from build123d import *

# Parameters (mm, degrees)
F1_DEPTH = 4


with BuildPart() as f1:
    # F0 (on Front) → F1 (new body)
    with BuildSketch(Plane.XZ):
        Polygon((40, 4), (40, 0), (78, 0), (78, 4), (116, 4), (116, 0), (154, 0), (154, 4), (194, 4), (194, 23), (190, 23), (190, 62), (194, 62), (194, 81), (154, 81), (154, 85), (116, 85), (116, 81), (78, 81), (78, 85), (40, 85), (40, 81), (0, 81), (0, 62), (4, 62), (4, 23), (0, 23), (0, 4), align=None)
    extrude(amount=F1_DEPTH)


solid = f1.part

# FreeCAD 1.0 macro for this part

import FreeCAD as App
import Part
import Sketcher
from FreeCAD import Vector


def add_polygon(sketch, points):
    """Adds a closed chain of lines whose ends are joined by coincident constraints."""
    first, n = sketch.GeometryCount, len(points)
    for a, b in zip(points, points[1:] + points[:1]):
        sketch.addGeometry(Part.LineSegment(App.Vector(*a, 0), App.Vector(*b, 0)), False)
    for i in range(n):
        sketch.addConstraint(Sketcher.Constraint("Coincident", first + i, 2, first + (i + 1) % n, 1))

doc = App.newDocument("Part")
body = doc.addObject("PartDesign::Body", "Body")

# Sketch on XZ plane
sketch1 = body.newObject("Sketcher::SketchObject", "Sketch")
sketch1.AttachmentSupport = (doc.getObject("XZ_Plane"), [""])
sketch1.MapMode = "FlatFace"
add_polygon(sketch1, [(40, 4), (40, 0), (78, 0), (78, 4), (116, 4), (116, 0), (154, 0), (154, 4), (194, 4), (194, 23), (190, 23), (190, 62), (194, 62), (194, 81), (154, 81), (154, 85), (116, 85), (116, 81), (78, 81), (78, 85), (40, 85), (40, 81), (0, 81), (0, 62), (4, 62), (4, 23), (0, 23), (0, 4)])  # lines 0-27
sketch1.addConstraint(Sketcher.Constraint("Vertical", 0))
sketch1.addConstraint(Sketcher.Constraint("Horizontal", 1))
sketch1.addConstraint(Sketcher.Constraint("Vertical", 2))
sketch1.addConstraint(Sketcher.Constraint("Horizontal", 3))
sketch1.addConstraint(Sketcher.Constraint("Vertical", 4))
sketch1.addConstraint(Sketcher.Constraint("Horizontal", 5))
sketch1.addConstraint(Sketcher.Constraint("Vertical", 6))
sketch1.addConstraint(Sketcher.Constraint("Horizontal", 7))
sketch1.addConstraint(Sketcher.Constraint("Vertical", 8))
sketch1.addConstraint(Sketcher.Constraint("Horizontal", 9))
sketch1.addConstraint(Sketcher.Constraint("Vertical", 10))
sketch1.addConstraint(Sketcher.Constraint("Horizontal", 11))
sketch1.addConstraint(Sketcher.Constraint("Vertical", 12))
sketch1.addConstraint(Sketcher.Constraint("Horizontal", 13))
sketch1.addConstraint(Sketcher.Constraint("Vertical", 14))
sketch1.addConstraint(Sketcher.Constraint("Horizontal", 15))
sketch1.addConstraint(Sketcher.Constraint("Vertical", 16))
sketch1.addConstraint(Sketcher.Constraint("Horizontal", 17))
sketch1.addConstraint(Sketcher.Constraint("Vertical", 18))
sketch1.addConstraint(Sketcher.Constraint("Horizontal", 19))
sketch1.addConstraint(Sketcher.Constraint("Vertical", 20))
sketch1.addConstraint(Sketcher.Constraint("Horizontal", 21))
sketch1.addConstraint(Sketcher.Constraint("Vertical", 22))
sketch1.addConstraint(Sketcher.Constraint("Horizontal", 23))
sketch1.addConstraint(Sketcher.Constraint("Vertical", 24))
sketch1.addConstraint(Sketcher.Constraint("Horizontal", 25))
sketch1.addConstraint(Sketcher.Constraint("Vertical", 26))
sketch1.addConstraint(Sketcher.Constraint("Horizontal", 27))
sketch1.addConstraint(Sketcher.Constraint("PointOnObject", 0, 2, -1))
sketch1.addConstraint(Sketcher.Constraint("PointOnObject", 4, 2, -1))
sketch1.addConstraint(Sketcher.Constraint("PointOnObject", 21, 2, -2))
sketch1.addConstraint(Sketcher.Constraint("PointOnObject", 25, 2, -2))
sketch1.addConstraint(Sketcher.Constraint("Horizontal", 3, 2, 6, 2))
sketch1.addConstraint(Sketcher.Constraint("Horizontal", 13, 2, 16, 2))
sketch1.addConstraint(Sketcher.Constraint("Horizontal", 15, 2, 18, 2))
sketch1.addConstraint(Sketcher.Constraint("Horizontal", 17, 2, 20, 2))
sketch1.addConstraint(Sketcher.Constraint("Horizontal", 11, 2, 22, 2))
sketch1.addConstraint(Sketcher.Constraint("Horizontal", 9, 2, 24, 2))
sketch1.addConstraint(Sketcher.Constraint("Horizontal", 7, 2, 26, 2))
sketch1.addConstraint(Sketcher.Constraint("Vertical", 8, 2, 11, 2))
sketch1.addConstraint(Sketcher.Constraint("Vertical", 6, 2, 13, 2))
sketch1.addConstraint(Sketcher.Constraint("Vertical", 4, 2, 15, 2))
sketch1.addConstraint(Sketcher.Constraint("Vertical", 2, 2, 17, 2))
sketch1.addConstraint(Sketcher.Constraint("Vertical", 0, 2, 19, 2))
sketch1.addConstraint(Sketcher.Constraint("Equal", 1, 3))
sketch1.addConstraint(Sketcher.Constraint("Equal", 3, 5))
sketch1.addConstraint(Sketcher.Constraint("Equal", 13, 21))
sketch1.addConstraint(Sketcher.Constraint("Equal", 11, 23))
sketch1.addConstraint(Sketcher.Constraint("Equal", 25, 0))
sketch1.addConstraint(Sketcher.Constraint("Equal", 8, 12))
sketch1.addConstraint(Sketcher.Constraint("Equal", 6, 14))
sketch1.addConstraint(Sketcher.Constraint("DistanceX", 1, 1, 1, 2, 38.0))
sketch1.addConstraint(Sketcher.Constraint("DistanceX", 7, 1, 7, 2, 40.0))
sketch1.addConstraint(Sketcher.Constraint("DistanceX", 9, 2, 9, 1, 4.0))
sketch1.addConstraint(Sketcher.Constraint("DistanceY", 8, 1, 8, 2, 19.0))
sketch1.addConstraint(Sketcher.Constraint("DistanceY", 10, 1, 10, 2, 39.0))
pad1 = body.newObject("PartDesign::Pad", "Pad")
pad1.Profile = sketch1
pad1.Length = 4

doc.recompute()
